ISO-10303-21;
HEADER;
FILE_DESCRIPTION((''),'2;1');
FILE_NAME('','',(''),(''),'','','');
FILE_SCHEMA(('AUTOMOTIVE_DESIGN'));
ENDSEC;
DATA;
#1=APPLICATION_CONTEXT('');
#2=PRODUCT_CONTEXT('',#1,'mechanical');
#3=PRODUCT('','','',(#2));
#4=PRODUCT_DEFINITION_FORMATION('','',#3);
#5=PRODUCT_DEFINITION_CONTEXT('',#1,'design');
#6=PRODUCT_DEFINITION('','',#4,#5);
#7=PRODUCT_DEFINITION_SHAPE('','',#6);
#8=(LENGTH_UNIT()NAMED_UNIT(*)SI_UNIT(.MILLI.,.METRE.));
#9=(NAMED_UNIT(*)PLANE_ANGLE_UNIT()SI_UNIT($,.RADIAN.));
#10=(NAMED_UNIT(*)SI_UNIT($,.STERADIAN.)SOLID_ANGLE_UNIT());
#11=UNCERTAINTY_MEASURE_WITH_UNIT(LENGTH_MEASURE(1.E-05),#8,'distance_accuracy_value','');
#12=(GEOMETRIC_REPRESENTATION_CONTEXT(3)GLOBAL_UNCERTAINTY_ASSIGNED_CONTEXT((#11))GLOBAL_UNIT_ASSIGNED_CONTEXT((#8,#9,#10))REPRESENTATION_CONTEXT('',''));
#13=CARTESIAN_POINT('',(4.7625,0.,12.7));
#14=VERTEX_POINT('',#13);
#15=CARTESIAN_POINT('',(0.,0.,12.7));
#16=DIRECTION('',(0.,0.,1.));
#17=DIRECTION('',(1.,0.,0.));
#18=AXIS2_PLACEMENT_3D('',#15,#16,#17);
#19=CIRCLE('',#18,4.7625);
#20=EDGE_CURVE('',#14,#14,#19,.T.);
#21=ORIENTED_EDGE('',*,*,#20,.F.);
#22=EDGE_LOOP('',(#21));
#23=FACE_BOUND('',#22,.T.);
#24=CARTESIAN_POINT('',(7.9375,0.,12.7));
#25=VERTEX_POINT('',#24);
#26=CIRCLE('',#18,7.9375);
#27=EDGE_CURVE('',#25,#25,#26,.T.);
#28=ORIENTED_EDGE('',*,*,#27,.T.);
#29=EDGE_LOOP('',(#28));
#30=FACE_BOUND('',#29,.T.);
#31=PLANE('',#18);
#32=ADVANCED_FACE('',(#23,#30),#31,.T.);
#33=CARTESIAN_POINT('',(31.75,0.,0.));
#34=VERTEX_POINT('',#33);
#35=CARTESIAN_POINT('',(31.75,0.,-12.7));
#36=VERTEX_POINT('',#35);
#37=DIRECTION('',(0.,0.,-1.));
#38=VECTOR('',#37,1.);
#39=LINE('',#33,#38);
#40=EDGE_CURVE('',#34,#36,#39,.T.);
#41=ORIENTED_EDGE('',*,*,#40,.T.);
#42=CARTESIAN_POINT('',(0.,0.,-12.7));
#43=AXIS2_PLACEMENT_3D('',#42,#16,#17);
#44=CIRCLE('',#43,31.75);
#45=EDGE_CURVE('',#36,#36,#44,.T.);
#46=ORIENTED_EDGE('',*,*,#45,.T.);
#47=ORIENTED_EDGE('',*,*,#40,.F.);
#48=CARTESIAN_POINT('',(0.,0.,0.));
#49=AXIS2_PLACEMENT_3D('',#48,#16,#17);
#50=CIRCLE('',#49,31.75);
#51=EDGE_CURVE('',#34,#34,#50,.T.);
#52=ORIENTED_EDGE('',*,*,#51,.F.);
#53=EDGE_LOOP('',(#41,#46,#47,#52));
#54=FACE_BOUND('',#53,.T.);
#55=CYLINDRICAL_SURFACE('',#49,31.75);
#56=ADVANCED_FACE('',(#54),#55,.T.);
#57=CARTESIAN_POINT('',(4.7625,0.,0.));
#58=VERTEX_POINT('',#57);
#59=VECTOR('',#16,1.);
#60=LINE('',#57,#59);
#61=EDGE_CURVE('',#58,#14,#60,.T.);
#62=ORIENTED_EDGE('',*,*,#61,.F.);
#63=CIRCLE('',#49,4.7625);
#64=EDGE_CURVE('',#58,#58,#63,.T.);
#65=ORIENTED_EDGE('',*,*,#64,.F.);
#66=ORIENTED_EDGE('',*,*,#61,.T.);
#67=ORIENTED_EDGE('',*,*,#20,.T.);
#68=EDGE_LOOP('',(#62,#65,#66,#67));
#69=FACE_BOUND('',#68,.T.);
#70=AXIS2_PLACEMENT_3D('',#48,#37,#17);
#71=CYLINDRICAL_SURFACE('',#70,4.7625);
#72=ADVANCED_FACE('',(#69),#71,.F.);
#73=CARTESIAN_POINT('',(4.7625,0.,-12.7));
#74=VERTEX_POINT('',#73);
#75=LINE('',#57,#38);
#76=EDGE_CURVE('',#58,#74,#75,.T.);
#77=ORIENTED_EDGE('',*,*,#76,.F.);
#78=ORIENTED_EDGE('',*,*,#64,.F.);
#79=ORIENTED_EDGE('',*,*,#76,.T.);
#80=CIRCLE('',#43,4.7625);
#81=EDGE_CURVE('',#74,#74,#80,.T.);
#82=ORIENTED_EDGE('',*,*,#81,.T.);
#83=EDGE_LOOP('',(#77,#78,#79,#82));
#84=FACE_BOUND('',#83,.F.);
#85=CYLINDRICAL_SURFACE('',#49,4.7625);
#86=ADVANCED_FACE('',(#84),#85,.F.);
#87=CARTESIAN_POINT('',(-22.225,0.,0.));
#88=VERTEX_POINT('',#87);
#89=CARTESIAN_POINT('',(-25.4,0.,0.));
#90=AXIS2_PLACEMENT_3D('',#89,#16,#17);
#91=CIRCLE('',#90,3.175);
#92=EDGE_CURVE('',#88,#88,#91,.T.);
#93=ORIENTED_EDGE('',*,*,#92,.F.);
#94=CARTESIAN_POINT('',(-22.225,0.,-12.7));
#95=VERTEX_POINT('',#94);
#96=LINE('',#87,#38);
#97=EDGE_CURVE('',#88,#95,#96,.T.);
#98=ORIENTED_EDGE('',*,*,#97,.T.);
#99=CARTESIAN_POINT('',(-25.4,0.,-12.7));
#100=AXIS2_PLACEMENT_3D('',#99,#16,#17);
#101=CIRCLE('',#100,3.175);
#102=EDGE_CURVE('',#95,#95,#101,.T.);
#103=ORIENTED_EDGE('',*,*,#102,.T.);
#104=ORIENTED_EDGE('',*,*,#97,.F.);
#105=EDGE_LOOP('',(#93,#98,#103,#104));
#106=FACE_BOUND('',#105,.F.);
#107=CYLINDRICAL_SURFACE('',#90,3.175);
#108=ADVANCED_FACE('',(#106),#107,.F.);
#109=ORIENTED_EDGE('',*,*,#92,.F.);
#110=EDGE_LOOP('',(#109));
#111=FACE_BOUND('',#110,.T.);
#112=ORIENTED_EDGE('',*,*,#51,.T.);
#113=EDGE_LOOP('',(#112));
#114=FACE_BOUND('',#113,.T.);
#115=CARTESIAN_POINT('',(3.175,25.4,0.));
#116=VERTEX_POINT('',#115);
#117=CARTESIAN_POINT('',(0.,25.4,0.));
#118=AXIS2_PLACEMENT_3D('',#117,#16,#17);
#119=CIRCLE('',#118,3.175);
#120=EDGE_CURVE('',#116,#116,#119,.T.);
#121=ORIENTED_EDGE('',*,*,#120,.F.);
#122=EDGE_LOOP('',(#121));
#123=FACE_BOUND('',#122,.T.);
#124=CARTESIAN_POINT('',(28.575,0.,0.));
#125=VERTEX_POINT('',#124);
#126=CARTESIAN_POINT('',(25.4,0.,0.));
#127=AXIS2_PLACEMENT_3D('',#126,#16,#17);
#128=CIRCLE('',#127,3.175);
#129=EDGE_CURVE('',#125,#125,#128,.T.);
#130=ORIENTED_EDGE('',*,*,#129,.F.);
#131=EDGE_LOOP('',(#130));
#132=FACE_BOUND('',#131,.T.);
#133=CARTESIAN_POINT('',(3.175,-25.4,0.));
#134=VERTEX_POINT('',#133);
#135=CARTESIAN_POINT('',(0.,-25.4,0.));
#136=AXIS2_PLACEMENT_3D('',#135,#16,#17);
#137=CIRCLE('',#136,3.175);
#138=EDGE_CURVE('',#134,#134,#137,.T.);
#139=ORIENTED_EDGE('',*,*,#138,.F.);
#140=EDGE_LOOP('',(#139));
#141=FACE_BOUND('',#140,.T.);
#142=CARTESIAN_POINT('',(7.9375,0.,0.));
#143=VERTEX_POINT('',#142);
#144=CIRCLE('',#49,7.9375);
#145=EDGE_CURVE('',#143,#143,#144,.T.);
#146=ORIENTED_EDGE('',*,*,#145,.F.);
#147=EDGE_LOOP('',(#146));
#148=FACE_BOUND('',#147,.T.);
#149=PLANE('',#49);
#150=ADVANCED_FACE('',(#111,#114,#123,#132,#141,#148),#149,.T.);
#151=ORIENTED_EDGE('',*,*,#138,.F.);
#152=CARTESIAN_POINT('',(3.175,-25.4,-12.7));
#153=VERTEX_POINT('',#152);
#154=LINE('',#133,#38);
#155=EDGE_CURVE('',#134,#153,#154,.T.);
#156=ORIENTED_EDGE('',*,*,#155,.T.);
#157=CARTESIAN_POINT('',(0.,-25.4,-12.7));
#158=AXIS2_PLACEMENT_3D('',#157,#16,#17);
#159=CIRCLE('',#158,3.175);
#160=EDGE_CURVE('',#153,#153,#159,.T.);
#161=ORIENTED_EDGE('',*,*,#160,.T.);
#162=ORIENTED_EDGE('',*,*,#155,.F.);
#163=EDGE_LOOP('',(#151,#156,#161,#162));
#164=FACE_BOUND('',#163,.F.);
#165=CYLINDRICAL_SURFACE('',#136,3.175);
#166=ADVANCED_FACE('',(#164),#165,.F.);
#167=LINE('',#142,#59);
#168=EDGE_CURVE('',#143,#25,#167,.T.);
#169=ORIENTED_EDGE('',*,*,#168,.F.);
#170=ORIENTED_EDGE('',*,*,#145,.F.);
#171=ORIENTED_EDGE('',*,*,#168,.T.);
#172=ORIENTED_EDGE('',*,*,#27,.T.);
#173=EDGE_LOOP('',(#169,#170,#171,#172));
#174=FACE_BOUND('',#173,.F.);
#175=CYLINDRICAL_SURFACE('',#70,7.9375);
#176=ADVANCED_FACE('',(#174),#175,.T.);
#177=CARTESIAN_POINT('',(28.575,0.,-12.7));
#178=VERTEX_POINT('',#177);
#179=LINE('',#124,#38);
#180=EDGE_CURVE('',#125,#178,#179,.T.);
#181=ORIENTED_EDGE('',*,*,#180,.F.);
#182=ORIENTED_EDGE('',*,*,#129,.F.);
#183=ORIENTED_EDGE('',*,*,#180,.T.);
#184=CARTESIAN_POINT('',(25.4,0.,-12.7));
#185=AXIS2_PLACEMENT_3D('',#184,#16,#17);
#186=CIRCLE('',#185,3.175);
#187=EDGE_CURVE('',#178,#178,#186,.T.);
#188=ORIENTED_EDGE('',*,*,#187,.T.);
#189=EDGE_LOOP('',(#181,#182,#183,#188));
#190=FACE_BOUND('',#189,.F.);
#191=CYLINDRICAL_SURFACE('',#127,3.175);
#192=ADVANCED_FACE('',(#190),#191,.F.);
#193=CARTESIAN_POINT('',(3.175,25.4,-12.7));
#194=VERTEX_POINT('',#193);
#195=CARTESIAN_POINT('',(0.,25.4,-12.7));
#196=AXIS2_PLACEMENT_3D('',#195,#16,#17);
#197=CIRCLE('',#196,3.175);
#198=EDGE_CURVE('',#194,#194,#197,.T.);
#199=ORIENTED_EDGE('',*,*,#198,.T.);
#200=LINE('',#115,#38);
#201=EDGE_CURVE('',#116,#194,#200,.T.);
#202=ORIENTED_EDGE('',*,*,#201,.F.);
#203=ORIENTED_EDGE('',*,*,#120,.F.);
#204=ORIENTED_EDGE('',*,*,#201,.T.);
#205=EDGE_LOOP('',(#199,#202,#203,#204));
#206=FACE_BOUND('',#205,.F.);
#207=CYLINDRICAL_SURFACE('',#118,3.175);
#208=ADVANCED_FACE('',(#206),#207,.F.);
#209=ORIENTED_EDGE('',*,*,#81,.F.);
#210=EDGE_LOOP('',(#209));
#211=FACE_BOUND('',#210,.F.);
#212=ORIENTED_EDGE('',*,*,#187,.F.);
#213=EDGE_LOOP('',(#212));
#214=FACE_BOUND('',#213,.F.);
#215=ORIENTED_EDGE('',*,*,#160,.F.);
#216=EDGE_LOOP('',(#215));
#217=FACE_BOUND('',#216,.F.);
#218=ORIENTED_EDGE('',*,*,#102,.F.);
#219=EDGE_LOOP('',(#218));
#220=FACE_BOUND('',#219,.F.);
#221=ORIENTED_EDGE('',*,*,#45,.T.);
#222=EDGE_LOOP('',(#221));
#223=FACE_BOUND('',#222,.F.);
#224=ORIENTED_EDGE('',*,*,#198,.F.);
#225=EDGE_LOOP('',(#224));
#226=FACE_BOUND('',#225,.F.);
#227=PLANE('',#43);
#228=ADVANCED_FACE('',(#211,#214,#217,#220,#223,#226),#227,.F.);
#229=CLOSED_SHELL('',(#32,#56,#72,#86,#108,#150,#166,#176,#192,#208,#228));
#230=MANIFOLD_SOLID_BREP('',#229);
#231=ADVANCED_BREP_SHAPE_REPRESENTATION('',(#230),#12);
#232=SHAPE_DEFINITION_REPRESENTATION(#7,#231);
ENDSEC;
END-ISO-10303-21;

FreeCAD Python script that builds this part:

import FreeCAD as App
import Part
import Sketcher
from FreeCAD import Vector
Q = App.Units.Quantity

doc = App.newDocument("Part")
body = doc.addObject("PartDesign::Body", "Body")

# Sketch on XY plane
sketch1 = body.newObject("Sketcher::SketchObject", "Sketch")
sketch1.AttachmentSupport = (doc.getObject("XY_Plane"), [""])
sketch1.MapMode = "FlatFace"
sketch1.addGeometry(Part.Circle(Vector(0, 0, 0), Vector(0, 0, 1), 31.75), False)
sketch1.addConstraint([
    Sketcher.Constraint("Coincident", 0, 3, -1, 1),
    Sketcher.Constraint("Diameter", 0, Q("2.5 in")),
])
pad1 = body.newObject("PartDesign::Pad", "Pad")
pad1.Profile = sketch1
pad1.Length = Q("0.5 in")
pad1.Reversed = True

# Sketch on XY plane
sketch2 = body.newObject("Sketcher::SketchObject", "Sketch001")
sketch2.AttachmentSupport = (doc.getObject("XY_Plane"), [""])
sketch2.MapMode = "FlatFace"
sketch2.addGeometry([
    Part.Circle(Vector(0, 0, 0), Vector(0, 0, 1), 7.9375),
    Part.Circle(Vector(0, 0, 0), Vector(0, 0, 1), 4.7625),
], False)
sketch2.addConstraint([
    Sketcher.Constraint("Coincident", 0, 3, -1, 1),
    Sketcher.Constraint("Coincident", 1, 3, -1, 1),
    Sketcher.Constraint("Diameter", 0, Q("0.625 in")),
    Sketcher.Constraint("Diameter", 1, Q("0.375 in")),
])
pad2 = body.newObject("PartDesign::Pad", "Pad001")
pad2.Profile = sketch2
pad2.Length = Q("0.5 in")

# Sketch on XY plane
sketch3 = body.newObject("Sketcher::SketchObject", "Sketch002")
sketch3.AttachmentSupport = (doc.getObject("XY_Plane"), [""])
sketch3.MapMode = "FlatFace"
sketch3.addGeometry(Part.Circle(Vector(0, 0, 0), Vector(0, 0, 1), 4.7625), False)
sketch3.addConstraint([
    Sketcher.Constraint("Coincident", 0, 3, -1, 1),
    Sketcher.Constraint("Diameter", 0, Q("0.375 in")),
])
pocket1 = body.newObject("PartDesign::Pocket", "Pocket")
pocket1.Profile = sketch3
pocket1.Length = Q("1 in")

# Sketch on XY plane
sketch4 = body.newObject("Sketcher::SketchObject", "Sketch003")
sketch4.AttachmentSupport = (doc.getObject("XY_Plane"), [""])
sketch4.MapMode = "FlatFace"
sketch4.addGeometry([
    Part.Circle(Vector(-25.4, 0, 0), Vector(0, 0, 1), 3.175),
    Part.Circle(Vector(0, -25.4, 0), Vector(0, 0, 1), 3.175),
    Part.Circle(Vector(25.4, 0, 0), Vector(0, 0, 1), 3.175),
    Part.Circle(Vector(0, 25.4, 0), Vector(0, 0, 1), 3.175),
], False)
sketch4.addConstraint([
    Sketcher.Constraint("Equal", 0, 1),
    Sketcher.Constraint("Equal", 1, 2),
    Sketcher.Constraint("Equal", 2, 3),
    Sketcher.Constraint("Symmetric", 0, 3, 2, 3, -1, 1),
    Sketcher.Constraint("Symmetric", 1, 3, 3, 3, -1, 1),
    Sketcher.Constraint("PointOnObject", 0, 3, -1),
    Sketcher.Constraint("PointOnObject", 1, 3, -2),
    Sketcher.Constraint("Diameter", 0, Q("0.25 in")),
    Sketcher.Constraint("DistanceX", 0, 3, -1, 1, Q("1 in")),
    Sketcher.Constraint("DistanceY", 1, 3, -1, 1, Q("1 in")),
])
pocket2 = body.newObject("PartDesign::Pocket", "Pocket001")
pocket2.Profile = sketch4
pocket2.Length = Q("1 in")

doc.recompute()
